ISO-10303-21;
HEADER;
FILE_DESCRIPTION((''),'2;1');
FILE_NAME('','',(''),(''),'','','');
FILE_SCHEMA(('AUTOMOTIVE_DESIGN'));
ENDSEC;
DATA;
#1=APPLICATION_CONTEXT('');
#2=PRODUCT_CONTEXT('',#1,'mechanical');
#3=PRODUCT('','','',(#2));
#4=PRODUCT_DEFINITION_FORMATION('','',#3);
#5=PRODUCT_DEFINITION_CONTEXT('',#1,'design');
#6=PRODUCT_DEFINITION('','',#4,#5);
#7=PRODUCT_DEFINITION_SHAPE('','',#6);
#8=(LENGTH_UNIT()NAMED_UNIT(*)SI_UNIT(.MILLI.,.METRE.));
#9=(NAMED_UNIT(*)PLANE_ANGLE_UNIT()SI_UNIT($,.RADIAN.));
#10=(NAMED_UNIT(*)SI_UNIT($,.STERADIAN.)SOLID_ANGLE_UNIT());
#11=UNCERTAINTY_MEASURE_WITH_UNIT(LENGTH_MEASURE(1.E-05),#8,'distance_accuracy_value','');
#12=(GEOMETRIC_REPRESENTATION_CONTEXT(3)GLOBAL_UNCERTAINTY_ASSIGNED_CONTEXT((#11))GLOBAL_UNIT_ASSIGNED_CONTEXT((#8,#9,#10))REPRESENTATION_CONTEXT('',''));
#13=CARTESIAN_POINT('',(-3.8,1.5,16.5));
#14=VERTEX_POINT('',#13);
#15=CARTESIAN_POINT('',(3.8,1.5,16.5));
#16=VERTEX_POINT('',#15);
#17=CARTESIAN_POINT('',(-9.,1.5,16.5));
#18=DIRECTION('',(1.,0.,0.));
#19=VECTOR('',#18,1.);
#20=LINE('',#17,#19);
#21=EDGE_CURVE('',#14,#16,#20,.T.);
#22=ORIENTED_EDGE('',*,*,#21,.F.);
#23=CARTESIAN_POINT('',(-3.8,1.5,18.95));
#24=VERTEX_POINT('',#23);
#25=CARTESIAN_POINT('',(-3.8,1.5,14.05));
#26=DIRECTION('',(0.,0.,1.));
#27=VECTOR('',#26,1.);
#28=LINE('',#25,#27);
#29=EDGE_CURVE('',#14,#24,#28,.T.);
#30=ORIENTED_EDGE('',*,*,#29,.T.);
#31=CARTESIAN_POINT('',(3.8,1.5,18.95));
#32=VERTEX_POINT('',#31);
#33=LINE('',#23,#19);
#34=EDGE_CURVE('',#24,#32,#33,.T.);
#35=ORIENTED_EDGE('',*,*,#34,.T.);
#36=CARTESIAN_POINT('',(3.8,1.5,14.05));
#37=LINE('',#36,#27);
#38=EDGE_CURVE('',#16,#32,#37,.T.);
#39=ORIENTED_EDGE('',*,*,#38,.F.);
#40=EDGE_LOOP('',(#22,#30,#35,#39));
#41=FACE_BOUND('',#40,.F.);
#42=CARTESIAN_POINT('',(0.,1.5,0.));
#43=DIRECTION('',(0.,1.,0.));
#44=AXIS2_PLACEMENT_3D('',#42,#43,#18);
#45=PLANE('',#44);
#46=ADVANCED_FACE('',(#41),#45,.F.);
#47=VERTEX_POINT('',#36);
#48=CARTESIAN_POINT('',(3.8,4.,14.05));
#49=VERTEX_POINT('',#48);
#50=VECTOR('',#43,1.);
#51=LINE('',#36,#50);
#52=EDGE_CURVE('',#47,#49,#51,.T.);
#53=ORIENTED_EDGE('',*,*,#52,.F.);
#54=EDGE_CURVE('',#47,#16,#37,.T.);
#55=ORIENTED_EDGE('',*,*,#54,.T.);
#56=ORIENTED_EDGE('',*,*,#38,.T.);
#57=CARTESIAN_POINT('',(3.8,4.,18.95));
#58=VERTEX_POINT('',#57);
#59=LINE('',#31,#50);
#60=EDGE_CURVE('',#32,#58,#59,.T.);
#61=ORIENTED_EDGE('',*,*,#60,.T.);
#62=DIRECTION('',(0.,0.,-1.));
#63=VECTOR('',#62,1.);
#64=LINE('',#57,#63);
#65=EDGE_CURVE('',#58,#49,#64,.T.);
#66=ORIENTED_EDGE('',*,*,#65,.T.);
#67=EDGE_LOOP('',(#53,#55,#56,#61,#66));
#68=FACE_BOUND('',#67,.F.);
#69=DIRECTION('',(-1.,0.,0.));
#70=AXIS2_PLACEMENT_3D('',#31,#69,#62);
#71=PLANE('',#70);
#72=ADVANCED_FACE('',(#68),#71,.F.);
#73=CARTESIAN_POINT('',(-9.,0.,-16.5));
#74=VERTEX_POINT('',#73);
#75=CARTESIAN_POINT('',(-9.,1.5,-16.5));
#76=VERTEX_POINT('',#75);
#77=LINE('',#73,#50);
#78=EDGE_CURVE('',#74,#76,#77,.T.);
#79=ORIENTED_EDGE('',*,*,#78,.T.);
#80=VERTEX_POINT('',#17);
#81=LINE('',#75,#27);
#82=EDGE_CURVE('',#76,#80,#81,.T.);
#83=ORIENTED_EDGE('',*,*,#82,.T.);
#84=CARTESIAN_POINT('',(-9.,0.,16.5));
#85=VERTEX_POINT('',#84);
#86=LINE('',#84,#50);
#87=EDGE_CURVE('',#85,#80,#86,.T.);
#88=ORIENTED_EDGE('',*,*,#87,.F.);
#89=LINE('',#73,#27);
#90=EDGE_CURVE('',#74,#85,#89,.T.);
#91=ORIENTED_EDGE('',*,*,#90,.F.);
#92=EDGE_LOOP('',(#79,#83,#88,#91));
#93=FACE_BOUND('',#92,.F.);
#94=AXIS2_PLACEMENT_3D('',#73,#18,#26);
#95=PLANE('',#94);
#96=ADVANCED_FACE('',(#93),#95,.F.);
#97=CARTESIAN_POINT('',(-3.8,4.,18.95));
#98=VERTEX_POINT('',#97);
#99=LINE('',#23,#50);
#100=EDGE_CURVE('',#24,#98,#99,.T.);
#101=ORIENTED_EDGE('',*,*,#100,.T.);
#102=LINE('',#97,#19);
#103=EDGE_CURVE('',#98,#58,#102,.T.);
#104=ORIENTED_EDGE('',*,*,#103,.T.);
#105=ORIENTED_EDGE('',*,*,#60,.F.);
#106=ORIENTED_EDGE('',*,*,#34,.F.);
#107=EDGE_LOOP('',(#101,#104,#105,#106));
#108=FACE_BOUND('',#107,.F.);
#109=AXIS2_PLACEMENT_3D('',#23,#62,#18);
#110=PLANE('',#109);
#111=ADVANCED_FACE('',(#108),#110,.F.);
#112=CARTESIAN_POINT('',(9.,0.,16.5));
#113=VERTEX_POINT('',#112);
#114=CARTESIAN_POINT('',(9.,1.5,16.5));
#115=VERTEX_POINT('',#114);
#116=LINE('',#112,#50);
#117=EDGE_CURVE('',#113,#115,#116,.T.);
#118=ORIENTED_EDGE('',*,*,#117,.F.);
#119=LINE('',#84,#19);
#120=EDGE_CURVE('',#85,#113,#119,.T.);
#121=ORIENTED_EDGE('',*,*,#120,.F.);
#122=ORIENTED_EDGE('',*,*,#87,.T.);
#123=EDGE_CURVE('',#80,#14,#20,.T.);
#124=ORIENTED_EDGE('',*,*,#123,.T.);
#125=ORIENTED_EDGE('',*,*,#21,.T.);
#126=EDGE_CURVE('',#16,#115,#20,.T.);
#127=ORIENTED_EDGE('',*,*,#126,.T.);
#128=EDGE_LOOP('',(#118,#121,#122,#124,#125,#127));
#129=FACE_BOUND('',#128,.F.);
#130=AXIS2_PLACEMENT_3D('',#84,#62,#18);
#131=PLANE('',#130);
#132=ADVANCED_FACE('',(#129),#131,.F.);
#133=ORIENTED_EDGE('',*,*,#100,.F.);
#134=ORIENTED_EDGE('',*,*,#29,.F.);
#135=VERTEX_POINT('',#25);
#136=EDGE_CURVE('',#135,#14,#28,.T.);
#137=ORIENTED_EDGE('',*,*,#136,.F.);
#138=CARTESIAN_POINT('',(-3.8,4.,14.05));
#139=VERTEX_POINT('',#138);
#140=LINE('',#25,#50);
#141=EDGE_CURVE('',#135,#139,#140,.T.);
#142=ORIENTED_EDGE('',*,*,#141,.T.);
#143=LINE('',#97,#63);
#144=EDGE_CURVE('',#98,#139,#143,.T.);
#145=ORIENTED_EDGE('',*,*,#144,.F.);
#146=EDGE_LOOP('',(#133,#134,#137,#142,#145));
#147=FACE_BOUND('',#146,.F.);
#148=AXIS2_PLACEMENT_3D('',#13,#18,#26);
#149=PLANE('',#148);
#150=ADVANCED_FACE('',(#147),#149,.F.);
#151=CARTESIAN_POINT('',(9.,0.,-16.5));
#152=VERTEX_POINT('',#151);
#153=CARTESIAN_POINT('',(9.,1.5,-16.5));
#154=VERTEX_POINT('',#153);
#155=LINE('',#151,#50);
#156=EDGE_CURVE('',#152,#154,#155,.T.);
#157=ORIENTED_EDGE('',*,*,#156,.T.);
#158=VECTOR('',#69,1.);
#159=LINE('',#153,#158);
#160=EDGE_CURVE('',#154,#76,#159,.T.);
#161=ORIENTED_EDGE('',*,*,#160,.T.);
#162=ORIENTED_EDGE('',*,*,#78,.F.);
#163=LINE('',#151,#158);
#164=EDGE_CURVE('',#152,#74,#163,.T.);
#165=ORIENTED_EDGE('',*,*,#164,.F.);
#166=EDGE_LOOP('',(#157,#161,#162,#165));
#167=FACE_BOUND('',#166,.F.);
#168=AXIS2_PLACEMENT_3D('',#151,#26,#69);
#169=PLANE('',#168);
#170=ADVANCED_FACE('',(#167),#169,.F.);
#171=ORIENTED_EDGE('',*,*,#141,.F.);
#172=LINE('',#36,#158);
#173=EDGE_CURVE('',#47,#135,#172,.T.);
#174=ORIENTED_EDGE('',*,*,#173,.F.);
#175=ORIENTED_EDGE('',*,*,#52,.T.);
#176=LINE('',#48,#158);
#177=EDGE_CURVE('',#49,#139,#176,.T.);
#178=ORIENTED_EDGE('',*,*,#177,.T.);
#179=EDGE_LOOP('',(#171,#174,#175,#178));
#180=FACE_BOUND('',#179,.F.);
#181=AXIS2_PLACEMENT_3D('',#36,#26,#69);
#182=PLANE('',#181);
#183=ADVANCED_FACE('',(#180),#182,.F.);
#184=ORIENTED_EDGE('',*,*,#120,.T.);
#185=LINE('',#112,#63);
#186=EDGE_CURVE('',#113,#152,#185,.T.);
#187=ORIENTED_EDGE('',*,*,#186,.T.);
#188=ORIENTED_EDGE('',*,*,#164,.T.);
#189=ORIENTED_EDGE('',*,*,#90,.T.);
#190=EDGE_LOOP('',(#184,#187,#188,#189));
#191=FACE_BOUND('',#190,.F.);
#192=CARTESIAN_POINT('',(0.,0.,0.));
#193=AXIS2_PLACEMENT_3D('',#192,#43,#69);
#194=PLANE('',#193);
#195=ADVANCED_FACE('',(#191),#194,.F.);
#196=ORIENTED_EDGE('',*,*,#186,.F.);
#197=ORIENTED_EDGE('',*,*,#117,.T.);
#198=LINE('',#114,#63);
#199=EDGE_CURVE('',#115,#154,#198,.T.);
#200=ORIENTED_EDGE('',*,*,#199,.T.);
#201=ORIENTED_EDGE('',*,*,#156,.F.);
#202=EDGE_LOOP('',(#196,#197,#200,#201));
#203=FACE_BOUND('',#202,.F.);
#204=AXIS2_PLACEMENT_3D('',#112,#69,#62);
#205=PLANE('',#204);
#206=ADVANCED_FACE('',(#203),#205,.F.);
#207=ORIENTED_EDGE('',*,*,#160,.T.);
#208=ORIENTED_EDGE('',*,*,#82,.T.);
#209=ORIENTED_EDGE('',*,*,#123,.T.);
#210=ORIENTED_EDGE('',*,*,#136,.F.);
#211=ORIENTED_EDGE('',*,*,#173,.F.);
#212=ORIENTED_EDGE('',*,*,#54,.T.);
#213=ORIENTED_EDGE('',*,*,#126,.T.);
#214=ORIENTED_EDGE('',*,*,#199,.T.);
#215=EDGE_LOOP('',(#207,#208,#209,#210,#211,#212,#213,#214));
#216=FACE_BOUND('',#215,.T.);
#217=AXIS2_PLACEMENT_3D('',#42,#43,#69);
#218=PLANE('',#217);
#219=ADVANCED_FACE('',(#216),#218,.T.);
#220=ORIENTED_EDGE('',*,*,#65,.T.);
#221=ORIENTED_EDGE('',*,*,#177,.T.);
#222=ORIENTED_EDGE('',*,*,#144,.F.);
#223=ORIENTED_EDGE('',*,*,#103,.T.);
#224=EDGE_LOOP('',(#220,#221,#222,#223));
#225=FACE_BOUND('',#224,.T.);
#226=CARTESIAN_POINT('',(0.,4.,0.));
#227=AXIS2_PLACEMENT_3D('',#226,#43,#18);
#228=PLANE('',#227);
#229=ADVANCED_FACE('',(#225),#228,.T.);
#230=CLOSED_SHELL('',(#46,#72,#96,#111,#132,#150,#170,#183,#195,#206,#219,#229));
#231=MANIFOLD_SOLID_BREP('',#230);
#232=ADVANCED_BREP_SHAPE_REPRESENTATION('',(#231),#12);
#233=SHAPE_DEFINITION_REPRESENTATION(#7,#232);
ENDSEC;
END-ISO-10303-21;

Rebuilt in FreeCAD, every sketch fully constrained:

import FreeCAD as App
import Part
import Sketcher
from FreeCAD import Vector

doc = App.newDocument("Part")
body = doc.addObject("PartDesign::Body", "Body")

# Sketch on XZ plane
sketch1 = body.newObject("Sketcher::SketchObject", "Sketch")
sketch1.AttachmentSupport = (doc.getObject("XZ_Plane"), [""])
sketch1.MapMode = "FlatFace"
sketch1.addGeometry(Part.LineSegment(Vector(-9, -16, 0), Vector(-9, 16, 0)), False)
sketch1.addGeometry(Part.LineSegment(Vector(-9, 16, 0), Vector(9, 16, 0)), False)
sketch1.addGeometry(Part.LineSegment(Vector(9, 16, 0), Vector(9, -16, 0)), False)
sketch1.addGeometry(Part.LineSegment(Vector(9, -16, 0), Vector(-9, -16, 0)), False)
sketch1.addConstraint(Sketcher.Constraint("Coincident", 0, 2, 1, 1))
sketch1.addConstraint(Sketcher.Constraint("Coincident", 1, 2, 2, 1))
sketch1.addConstraint(Sketcher.Constraint("Coincident", 2, 2, 3, 1))
sketch1.addConstraint(Sketcher.Constraint("Coincident", 3, 2, 0, 1))
sketch1.addConstraint(Sketcher.Constraint("Vertical", 0))
sketch1.addConstraint(Sketcher.Constraint("Horizontal", 1))
sketch1.addConstraint(Sketcher.Constraint("Vertical", 2))
sketch1.addConstraint(Sketcher.Constraint("Horizontal", 3))
sketch1.addConstraint(Sketcher.Constraint("Symmetric", 0, 2, 2, 2, -1, 1))
sketch1.addConstraint(Sketcher.Constraint("DistanceX", 1, 1, 1, 2, 18.0))
sketch1.addConstraint(Sketcher.Constraint("DistanceY", 0, 1, 0, 2, 33.0))
pad1 = body.newObject("PartDesign::Pad", "Pad")
pad1.Profile = sketch1
pad1.Length = 1.5
pad1.Reversed = True

# Sketch on XZ plane
sketch2 = body.newObject("Sketcher::SketchObject", "Sketch001")
sketch2.AttachmentSupport = (doc.getObject("XZ_Plane"), [""])
sketch2.MapMode = "FlatFace"
sketch2.AttachmentOffset = App.Placement(Vector(0, 0, -1.5), App.Rotation())
sketch2.addGeometry(Part.LineSegment(Vector(-3.8, 18.9, 0), Vector(3.8, 18.9, 0)), False)
sketch2.addGeometry(Part.LineSegment(Vector(3.8, 18.9, 0), Vector(3.8, 14.1, 0)), False)
sketch2.addGeometry(Part.LineSegment(Vector(3.8, 14.1, 0), Vector(-3.8, 14.1, 0)), False)
sketch2.addGeometry(Part.LineSegment(Vector(-3.8, 14.1, 0), Vector(-3.8, 18.9, 0)), False)
sketch2.addConstraint(Sketcher.Constraint("Coincident", 0, 2, 1, 1))
sketch2.addConstraint(Sketcher.Constraint("Coincident", 1, 2, 2, 1))
sketch2.addConstraint(Sketcher.Constraint("Coincident", 2, 2, 3, 1))
sketch2.addConstraint(Sketcher.Constraint("Coincident", 3, 2, 0, 1))
sketch2.addConstraint(Sketcher.Constraint("Horizontal", 0))
sketch2.addConstraint(Sketcher.Constraint("Vertical", 1))
sketch2.addConstraint(Sketcher.Constraint("Horizontal", 2))
sketch2.addConstraint(Sketcher.Constraint("Vertical", 3))
sketch2.addConstraint(Sketcher.Constraint("DistanceX", 0, 1, 0, 2, 7.6))
sketch2.addConstraint(Sketcher.Constraint("DistanceY", 1, 2, 1, 1, 4.9))
sketch2.addConstraint(Sketcher.Constraint("DistanceX", -1, 1, 0, 2, 3.8))
sketch2.addConstraint(Sketcher.Constraint("DistanceY", -1, 1, 0, 2, 18.95))
pad2 = body.newObject("PartDesign::Pad", "Pad001")
pad2.Profile = sketch2
pad2.Length = 2.5
pad2.Reversed = True

doc.recompute()
